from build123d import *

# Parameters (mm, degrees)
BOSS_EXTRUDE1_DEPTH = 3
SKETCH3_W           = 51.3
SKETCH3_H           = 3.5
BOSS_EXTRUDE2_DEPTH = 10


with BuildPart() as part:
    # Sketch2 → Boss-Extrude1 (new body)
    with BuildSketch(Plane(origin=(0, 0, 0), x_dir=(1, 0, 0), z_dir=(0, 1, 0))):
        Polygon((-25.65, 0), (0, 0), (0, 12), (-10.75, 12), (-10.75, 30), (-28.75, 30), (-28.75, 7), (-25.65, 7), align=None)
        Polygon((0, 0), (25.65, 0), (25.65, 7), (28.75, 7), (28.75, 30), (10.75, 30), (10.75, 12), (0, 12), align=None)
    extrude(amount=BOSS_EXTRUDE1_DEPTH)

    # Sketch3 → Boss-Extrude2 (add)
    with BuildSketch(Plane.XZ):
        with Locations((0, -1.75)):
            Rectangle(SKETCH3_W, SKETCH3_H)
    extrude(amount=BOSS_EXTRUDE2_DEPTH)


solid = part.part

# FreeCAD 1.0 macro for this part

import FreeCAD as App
import Part
import Sketcher


def add_polygon(sketch, points):
    """Adds a closed chain of lines whose ends are joined by coincident constraints."""
    first, n = sketch.GeometryCount, len(points)
    for a, b in zip(points, points[1:] + points[:1]):
        sketch.addGeometry(Part.LineSegment(App.Vector(*a, 0), App.Vector(*b, 0)), False)
    for i in range(n):
        sketch.addConstraint(Sketcher.Constraint("Coincident", first + i, 2, first + (i + 1) % n, 1))

doc = App.newDocument("Part")
body = doc.addObject("PartDesign::Body", "Body")

sketch1 = body.newObject("Sketcher::SketchObject", "Sketch")
sketch1.AttachmentSupport = (doc.getObject("XZ_Plane"), [""])
sketch1.MapMode = "FlatFace"
add_polygon(sketch1, [(-25.6, 0), (25.6, 0), (25.6, -7), (28.8, -7), (28.8, -30), (10.8, -30), (10.8, -12), (-10.8, -12), (-10.8, -30), (-28.8, -30), (-28.8, -7), (-25.6, -7)])
sketch1.addConstraint([
    Sketcher.Constraint("Horizontal", 0),
    Sketcher.Constraint("Vertical", 1),
    Sketcher.Constraint("Horizontal", 2),
    Sketcher.Constraint("Vertical", 3),
    Sketcher.Constraint("Horizontal", 4),
    Sketcher.Constraint("Vertical", 5),
    Sketcher.Constraint("Horizontal", 6),
    Sketcher.Constraint("Vertical", 7),
    Sketcher.Constraint("Horizontal", 8),
    Sketcher.Constraint("Vertical", 9),
    Sketcher.Constraint("Horizontal", 10),
    Sketcher.Constraint("Vertical", 11),
    Sketcher.Constraint("Symmetric", 0, 2, 11, 2, -1, 1),
    Sketcher.Constraint("Symmetric", 4, 2, 7, 2, -2),
    Sketcher.Constraint("Symmetric", 2, 2, 9, 2, -2),
    Sketcher.Constraint("Equal", 8, 5),
    Sketcher.Constraint("DistanceX", 4, 2, 4, 1, 18.0),
    Sketcher.Constraint("DistanceY", 1, 2, 1, 1, 7.0),
    Sketcher.Constraint("DistanceY", 3, 2, 3, 1, 23.0),
    Sketcher.Constraint("DistanceX", 0, 1, 0, 2, 51.3),
    Sketcher.Constraint("DistanceX", 2, 1, 2, 2, 3.1),
])
pad1 = body.newObject("PartDesign::Pad", "Pad")
pad1.Profile = sketch1
pad1.Length = 3
pad1.Reversed = True

sketch2 = body.newObject("Sketcher::SketchObject", "Sketch001")
sketch2.AttachmentSupport = (doc.getObject("XZ_Plane"), [""])
sketch2.MapMode = "FlatFace"
add_polygon(sketch2, [(-25.6, 0), (-25.6, -3.5), (25.6, -3.5), (25.6, 0)])
sketch2.addConstraint([
    Sketcher.Constraint("Vertical", 0),
    Sketcher.Constraint("Horizontal", 1),
    Sketcher.Constraint("Vertical", 2),
    Sketcher.Constraint("Horizontal", 3),
    Sketcher.Constraint("Symmetric", 2, 2, 3, 2, -1, 1),
    Sketcher.Constraint("DistanceX", 1, 1, 1, 2, 51.3),
    Sketcher.Constraint("DistanceY", 0, 2, 0, 1, 3.5),
])
pad2 = body.newObject("PartDesign::Pad", "Pad001")
pad2.Profile = sketch2
pad2.Length = 10

doc.recompute()
